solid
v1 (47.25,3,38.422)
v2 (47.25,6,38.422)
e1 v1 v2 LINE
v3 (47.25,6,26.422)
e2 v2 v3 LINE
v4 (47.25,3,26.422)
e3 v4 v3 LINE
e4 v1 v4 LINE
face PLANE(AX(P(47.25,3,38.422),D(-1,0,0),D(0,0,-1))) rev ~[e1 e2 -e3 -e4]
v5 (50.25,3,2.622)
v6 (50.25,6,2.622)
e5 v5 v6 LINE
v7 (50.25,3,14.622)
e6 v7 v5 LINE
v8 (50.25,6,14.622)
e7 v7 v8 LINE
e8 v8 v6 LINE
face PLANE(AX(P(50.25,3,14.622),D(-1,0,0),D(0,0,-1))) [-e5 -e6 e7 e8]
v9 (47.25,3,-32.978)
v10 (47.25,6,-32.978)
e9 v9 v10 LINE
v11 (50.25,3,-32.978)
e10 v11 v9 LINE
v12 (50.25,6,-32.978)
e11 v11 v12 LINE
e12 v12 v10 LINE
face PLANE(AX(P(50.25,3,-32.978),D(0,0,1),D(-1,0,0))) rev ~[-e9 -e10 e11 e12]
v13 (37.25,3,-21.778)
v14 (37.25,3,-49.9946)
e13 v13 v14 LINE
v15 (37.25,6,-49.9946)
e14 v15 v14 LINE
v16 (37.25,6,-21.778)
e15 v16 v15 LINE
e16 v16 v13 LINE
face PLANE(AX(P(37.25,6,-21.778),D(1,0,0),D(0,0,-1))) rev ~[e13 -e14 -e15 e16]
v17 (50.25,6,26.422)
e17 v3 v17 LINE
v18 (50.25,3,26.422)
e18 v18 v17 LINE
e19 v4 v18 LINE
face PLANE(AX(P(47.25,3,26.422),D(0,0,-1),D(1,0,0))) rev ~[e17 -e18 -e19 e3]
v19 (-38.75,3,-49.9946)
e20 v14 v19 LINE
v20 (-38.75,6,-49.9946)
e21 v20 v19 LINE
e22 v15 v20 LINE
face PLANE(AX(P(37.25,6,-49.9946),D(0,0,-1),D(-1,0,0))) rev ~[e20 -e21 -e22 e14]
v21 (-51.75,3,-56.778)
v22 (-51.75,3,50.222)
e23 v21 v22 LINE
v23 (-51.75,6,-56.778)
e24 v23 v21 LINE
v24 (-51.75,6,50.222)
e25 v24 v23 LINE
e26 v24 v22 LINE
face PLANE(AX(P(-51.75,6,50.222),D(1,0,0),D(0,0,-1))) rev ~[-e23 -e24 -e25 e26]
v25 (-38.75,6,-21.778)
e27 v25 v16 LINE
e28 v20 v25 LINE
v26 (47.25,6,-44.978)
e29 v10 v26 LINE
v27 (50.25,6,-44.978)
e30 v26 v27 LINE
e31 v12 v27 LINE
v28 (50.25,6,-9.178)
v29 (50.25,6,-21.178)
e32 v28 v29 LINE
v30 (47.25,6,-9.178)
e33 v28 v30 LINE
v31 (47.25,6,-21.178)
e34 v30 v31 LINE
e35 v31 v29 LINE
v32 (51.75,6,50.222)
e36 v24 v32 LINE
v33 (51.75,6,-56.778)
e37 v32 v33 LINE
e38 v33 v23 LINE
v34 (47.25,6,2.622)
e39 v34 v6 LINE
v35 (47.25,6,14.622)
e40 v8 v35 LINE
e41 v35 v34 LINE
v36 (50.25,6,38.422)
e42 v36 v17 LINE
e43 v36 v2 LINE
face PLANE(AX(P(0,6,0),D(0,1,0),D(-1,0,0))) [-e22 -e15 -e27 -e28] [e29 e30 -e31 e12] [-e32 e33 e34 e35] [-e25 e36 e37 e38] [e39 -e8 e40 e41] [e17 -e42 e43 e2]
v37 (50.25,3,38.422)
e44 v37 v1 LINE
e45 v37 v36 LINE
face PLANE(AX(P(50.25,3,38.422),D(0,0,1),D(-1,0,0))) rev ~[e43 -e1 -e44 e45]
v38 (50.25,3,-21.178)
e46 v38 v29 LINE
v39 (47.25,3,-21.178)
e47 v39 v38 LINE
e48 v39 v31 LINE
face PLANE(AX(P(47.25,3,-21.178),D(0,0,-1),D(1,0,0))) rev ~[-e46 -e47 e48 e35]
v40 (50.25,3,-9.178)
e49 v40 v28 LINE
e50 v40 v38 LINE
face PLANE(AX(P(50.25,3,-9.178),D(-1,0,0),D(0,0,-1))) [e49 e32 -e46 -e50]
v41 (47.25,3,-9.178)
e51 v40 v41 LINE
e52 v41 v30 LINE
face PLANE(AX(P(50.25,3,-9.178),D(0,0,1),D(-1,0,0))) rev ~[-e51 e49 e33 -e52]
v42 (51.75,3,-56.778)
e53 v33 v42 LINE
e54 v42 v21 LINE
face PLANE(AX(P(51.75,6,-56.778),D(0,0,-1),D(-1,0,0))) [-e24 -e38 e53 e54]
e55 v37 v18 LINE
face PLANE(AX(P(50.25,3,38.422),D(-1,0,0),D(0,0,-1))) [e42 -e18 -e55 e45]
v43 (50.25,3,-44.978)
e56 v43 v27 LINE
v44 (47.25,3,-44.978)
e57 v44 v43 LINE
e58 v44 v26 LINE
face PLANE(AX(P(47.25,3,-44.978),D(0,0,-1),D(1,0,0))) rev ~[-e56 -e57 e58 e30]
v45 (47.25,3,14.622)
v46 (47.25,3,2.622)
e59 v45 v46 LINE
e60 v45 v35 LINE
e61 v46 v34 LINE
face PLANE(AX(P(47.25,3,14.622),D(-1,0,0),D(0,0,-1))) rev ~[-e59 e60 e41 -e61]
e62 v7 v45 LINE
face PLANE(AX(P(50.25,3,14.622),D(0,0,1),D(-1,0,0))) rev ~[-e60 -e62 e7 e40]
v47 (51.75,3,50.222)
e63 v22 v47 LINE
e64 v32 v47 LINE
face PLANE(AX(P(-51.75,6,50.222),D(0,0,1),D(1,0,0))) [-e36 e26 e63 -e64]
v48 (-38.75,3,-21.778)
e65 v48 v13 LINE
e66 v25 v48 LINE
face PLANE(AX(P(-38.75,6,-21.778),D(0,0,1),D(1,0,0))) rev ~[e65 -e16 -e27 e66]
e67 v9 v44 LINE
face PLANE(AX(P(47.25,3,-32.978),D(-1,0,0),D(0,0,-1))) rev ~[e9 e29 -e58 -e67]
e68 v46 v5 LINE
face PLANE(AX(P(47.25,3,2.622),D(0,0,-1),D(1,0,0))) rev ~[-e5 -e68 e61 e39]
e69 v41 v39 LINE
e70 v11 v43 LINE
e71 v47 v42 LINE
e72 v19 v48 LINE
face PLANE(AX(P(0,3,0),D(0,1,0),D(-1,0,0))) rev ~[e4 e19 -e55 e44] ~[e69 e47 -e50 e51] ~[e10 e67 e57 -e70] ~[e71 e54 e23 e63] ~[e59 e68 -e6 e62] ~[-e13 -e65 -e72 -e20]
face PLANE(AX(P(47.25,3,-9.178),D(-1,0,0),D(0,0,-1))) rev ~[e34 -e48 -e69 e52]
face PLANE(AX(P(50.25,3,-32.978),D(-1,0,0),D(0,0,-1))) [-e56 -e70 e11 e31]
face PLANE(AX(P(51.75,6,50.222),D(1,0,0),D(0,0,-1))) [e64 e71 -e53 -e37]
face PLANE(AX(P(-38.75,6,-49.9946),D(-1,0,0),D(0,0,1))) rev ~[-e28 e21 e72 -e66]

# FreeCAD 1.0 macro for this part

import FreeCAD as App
import Part
import Sketcher

doc = App.newDocument("Part")
params = doc.addObject("Spreadsheet::Sheet", "Params")
for row, (alias, value) in enumerate([
    ("sketch1_width", "76 mm"),
    ("sketch1_width2", "103.5 mm"),
    ("sketch1_height", "107 mm"),
    ("pad1_length", "3 mm"),
    ("sketch2_width", "3 mm"),
    ("sketch2_height", "12 mm"),
    ("pocket1_length", "3 mm"),
], start=1):
    params.set(f"A{row}", alias)
    params.set(f"B{row}", "=" + value)
    params.setAlias(f"B{row}", alias)

body = doc.addObject("PartDesign::Body", "Body")

# Sketch on XZ plane
sketch1 = body.newObject("Sketcher::SketchObject", "Sketch")
sketch1.AttachmentSupport = (doc.getObject("XZ_Plane"), [""])
sketch1.MapMode = "FlatFace"
sketch1.AttachmentOffset = App.Placement(App.Vector(0, 0, -6), App.Rotation())
sketch1.addGeometry(Part.LineSegment(App.Vector(-52, -57, 0), App.Vector(-52, 50, 0)), False)
sketch1.addGeometry(Part.LineSegment(App.Vector(-52, 50, 0), App.Vector(52, 50, 0)), False)
sketch1.addGeometry(Part.LineSegment(App.Vector(52, 50, 0), App.Vector(52, -57, 0)), False)
sketch1.addGeometry(Part.LineSegment(App.Vector(52, -57, 0), App.Vector(-52, -57, 0)), False)
sketch1.addGeometry(Part.LineSegment(App.Vector(-39, -22, 0), App.Vector(-39, -50, 0)), False)
sketch1.addGeometry(Part.LineSegment(App.Vector(-39, -50, 0), App.Vector(37, -50, 0)), False)
sketch1.addGeometry(Part.LineSegment(App.Vector(37, -50, 0), App.Vector(37, -22, 0)), False)
sketch1.addGeometry(Part.LineSegment(App.Vector(37, -22, 0), App.Vector(-39, -22, 0)), False)
sketch1.addConstraint(Sketcher.Constraint("Coincident", 0, 2, 1, 1))
sketch1.addConstraint(Sketcher.Constraint("Coincident", 1, 2, 2, 1))
sketch1.addConstraint(Sketcher.Constraint("Coincident", 2, 2, 3, 1))
sketch1.addConstraint(Sketcher.Constraint("Coincident", 3, 2, 0, 1))
sketch1.addConstraint(Sketcher.Constraint("Coincident", 4, 2, 5, 1))
sketch1.addConstraint(Sketcher.Constraint("Coincident", 5, 2, 6, 1))
sketch1.addConstraint(Sketcher.Constraint("Coincident", 6, 2, 7, 1))
sketch1.addConstraint(Sketcher.Constraint("Coincident", 7, 2, 4, 1))
sketch1.addConstraint(Sketcher.Constraint("Vertical", 0))
sketch1.addConstraint(Sketcher.Constraint("Horizontal", 1))
sketch1.addConstraint(Sketcher.Constraint("Vertical", 2))
sketch1.addConstraint(Sketcher.Constraint("Horizontal", 3))
sketch1.addConstraint(Sketcher.Constraint("Vertical", 4))
sketch1.addConstraint(Sketcher.Constraint("Horizontal", 5))
sketch1.addConstraint(Sketcher.Constraint("Vertical", 6))
sketch1.addConstraint(Sketcher.Constraint("Horizontal", 7))
sketch1.addConstraint(Sketcher.Constraint("DistanceX", 5, 1, 5, 2, 76.0))
sketch1.addConstraint(Sketcher.Constraint("DistanceX", 1, 1, 1, 2, 103.5))
sketch1.addConstraint(Sketcher.Constraint("DistanceY", 0, 1, 0, 2, 107.0))
sketch1.addConstraint(Sketcher.Constraint("DistanceX", 0, 2, -1, 1, 51.75))
sketch1.addConstraint(Sketcher.Constraint("DistanceX", 3, 2, 4, 2, 13.0))
sketch1.addConstraint(Sketcher.Constraint("DistanceY", 2, 2, 6, 2, 35.0))
sketch1.addConstraint(Sketcher.Constraint("DistanceY", 4, 2, 4, 1, 28.2166))
sketch1.addConstraint(Sketcher.Constraint("DistanceY", -1, 1, 0, 2, 50.222))
sketch1.setExpression("Constraints[16]", "Params.sketch1_width")
sketch1.setExpression("Constraints[17]", "Params.sketch1_width2")
sketch1.setExpression("Constraints[18]", "Params.sketch1_height")
pad1 = body.newObject("PartDesign::Pad", "Pad")
pad1.Profile = sketch1
pad1.setExpression("Length", "Params.pad1_length")

# Sketch on XZ plane
sketch2 = body.newObject("Sketcher::SketchObject", "Sketch001")
sketch2.AttachmentSupport = (doc.getObject("XZ_Plane"), [""])
sketch2.MapMode = "FlatFace"
sketch2.AttachmentOffset = App.Placement(App.Vector(0, 0, -3), App.Rotation())
sketch2.addGeometry(Part.LineSegment(App.Vector(47.2, -33, 0), App.Vector(47.2, -45, 0)), False)
sketch2.addGeometry(Part.LineSegment(App.Vector(47.2, -45, 0), App.Vector(50.2, -45, 0)), False)
sketch2.addGeometry(Part.LineSegment(App.Vector(50.2, -45, 0), App.Vector(50.2, -33, 0)), False)
sketch2.addGeometry(Part.LineSegment(App.Vector(50.2, -33, 0), App.Vector(47.2, -33, 0)), False)
sketch2.addGeometry(Part.LineSegment(App.Vector(47.2, -9.2, 0), App.Vector(47.2, -21.2, 0)), False)
sketch2.addGeometry(Part.LineSegment(App.Vector(47.2, -21.2, 0), App.Vector(50.2, -21.2, 0)), False)
sketch2.addGeometry(Part.LineSegment(App.Vector(50.2, -21.2, 0), App.Vector(50.2, -9.2, 0)), False)
sketch2.addGeometry(Part.LineSegment(App.Vector(50.2, -9.2, 0), App.Vector(47.2, -9.2, 0)), False)
sketch2.addGeometry(Part.LineSegment(App.Vector(50.2, 2.6, 0), App.Vector(50.2, 14.6, 0)), False)
sketch2.addGeometry(Part.LineSegment(App.Vector(50.2, 14.6, 0), App.Vector(47.2, 14.6, 0)), False)
sketch2.addGeometry(Part.LineSegment(App.Vector(47.2, 14.6, 0), App.Vector(47.2, 2.6, 0)), False)
sketch2.addGeometry(Part.LineSegment(App.Vector(47.2, 2.6, 0), App.Vector(50.2, 2.6, 0)), False)
sketch2.addGeometry(Part.LineSegment(App.Vector(50.2, 26.4, 0), App.Vector(50.2, 38.4, 0)), False)
sketch2.addGeometry(Part.LineSegment(App.Vector(50.2, 38.4, 0), App.Vector(47.2, 38.4, 0)), False)
sketch2.addGeometry(Part.LineSegment(App.Vector(47.2, 38.4, 0), App.Vector(47.2, 26.4, 0)), False)
sketch2.addGeometry(Part.LineSegment(App.Vector(47.2, 26.4, 0), App.Vector(50.2, 26.4, 0)), False)
sketch2.addConstraint(Sketcher.Constraint("Coincident", 0, 2, 1, 1))
sketch2.addConstraint(Sketcher.Constraint("Coincident", 1, 2, 2, 1))
sketch2.addConstraint(Sketcher.Constraint("Coincident", 2, 2, 3, 1))
sketch2.addConstraint(Sketcher.Constraint("Coincident", 3, 2, 0, 1))
sketch2.addConstraint(Sketcher.Constraint("Coincident", 4, 2, 5, 1))
sketch2.addConstraint(Sketcher.Constraint("Coincident", 5, 2, 6, 1))
sketch2.addConstraint(Sketcher.Constraint("Coincident", 6, 2, 7, 1))
sketch2.addConstraint(Sketcher.Constraint("Coincident", 7, 2, 4, 1))
sketch2.addConstraint(Sketcher.Constraint("Coincident", 8, 2, 9, 1))
sketch2.addConstraint(Sketcher.Constraint("Coincident", 9, 2, 10, 1))
sketch2.addConstraint(Sketcher.Constraint("Coincident", 10, 2, 11, 1))
sketch2.addConstraint(Sketcher.Constraint("Coincident", 11, 2, 8, 1))
sketch2.addConstraint(Sketcher.Constraint("Coincident", 12, 2, 13, 1))
sketch2.addConstraint(Sketcher.Constraint("Coincident", 13, 2, 14, 1))
sketch2.addConstraint(Sketcher.Constraint("Coincident", 14, 2, 15, 1))
sketch2.addConstraint(Sketcher.Constraint("Coincident", 15, 2, 12, 1))
sketch2.addConstraint(Sketcher.Constraint("Vertical", 0))
sketch2.addConstraint(Sketcher.Constraint("Horizontal", 1))
sketch2.addConstraint(Sketcher.Constraint("Vertical", 2))
sketch2.addConstraint(Sketcher.Constraint("Horizontal", 3))
sketch2.addConstraint(Sketcher.Constraint("Vertical", 4))
sketch2.addConstraint(Sketcher.Constraint("Horizontal", 5))
sketch2.addConstraint(Sketcher.Constraint("Vertical", 6))
sketch2.addConstraint(Sketcher.Constraint("Horizontal", 7))
sketch2.addConstraint(Sketcher.Constraint("Vertical", 8))
sketch2.addConstraint(Sketcher.Constraint("Horizontal", 9))
sketch2.addConstraint(Sketcher.Constraint("Vertical", 10))
sketch2.addConstraint(Sketcher.Constraint("Horizontal", 11))
sketch2.addConstraint(Sketcher.Constraint("Vertical", 12))
sketch2.addConstraint(Sketcher.Constraint("Horizontal", 13))
sketch2.addConstraint(Sketcher.Constraint("Vertical", 14))
sketch2.addConstraint(Sketcher.Constraint("Horizontal", 15))
sketch2.addConstraint(Sketcher.Constraint("Vertical", 3, 2, 4, 2))
sketch2.addConstraint(Sketcher.Constraint("Vertical", 2, 2, 5, 2))
sketch2.addConstraint(Sketcher.Constraint("Vertical", 6, 2, 8, 2))
sketch2.addConstraint(Sketcher.Constraint("Vertical", 7, 2, 9, 2))
sketch2.addConstraint(Sketcher.Constraint("Vertical", 11, 2, 12, 2))
sketch2.addConstraint(Sketcher.Constraint("Vertical", 10, 2, 13, 2))
sketch2.addConstraint(Sketcher.Constraint("Equal", 2, 4))
sketch2.addConstraint(Sketcher.Constraint("Equal", 6, 8))
sketch2.addConstraint(Sketcher.Constraint("Equal", 10, 12))
sketch2.addConstraint(Sketcher.Constraint("DistanceX", 1, 1, 1, 2, 3.0))
sketch2.addConstraint(Sketcher.Constraint("DistanceY", 0, 2, 0, 1, 12.0))
sketch2.addConstraint(Sketcher.Constraint("DistanceY", 3, 2, 4, 2, 11.8))
sketch2.addConstraint(Sketcher.Constraint("DistanceY", 6, 2, 8, 2, 23.8))
sketch2.addConstraint(Sketcher.Constraint("DistanceY", 8, 2, 12, 2, 23.8))
sketch2.addConstraint(Sketcher.Constraint("DistanceX", -1, 1, 0, 2, 47.25))
sketch2.addConstraint(Sketcher.Constraint("DistanceY", 0, 2, -1, 1, 44.978))
sketch2.setExpression("Constraints[41]", "Params.sketch2_width")
sketch2.setExpression("Constraints[42]", "Params.sketch2_height")
pocket1 = body.newObject("PartDesign::Pocket", "Pocket")
pocket1.Profile = sketch2
pocket1.setExpression("Length", "Params.pocket1_length")

doc.recompute()
